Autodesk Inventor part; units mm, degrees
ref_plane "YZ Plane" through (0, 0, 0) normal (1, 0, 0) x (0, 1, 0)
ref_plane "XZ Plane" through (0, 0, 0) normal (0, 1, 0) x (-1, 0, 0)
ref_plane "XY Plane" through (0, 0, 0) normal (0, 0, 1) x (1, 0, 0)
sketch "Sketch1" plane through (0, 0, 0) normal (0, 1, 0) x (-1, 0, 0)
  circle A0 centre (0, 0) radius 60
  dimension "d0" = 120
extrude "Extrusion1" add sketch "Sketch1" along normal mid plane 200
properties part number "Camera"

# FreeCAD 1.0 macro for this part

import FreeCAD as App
import Part
import Sketcher
Q = App.Units.Quantity

doc = App.newDocument("Part")
body = doc.addObject("PartDesign::Body", "Body")

# Sketch on XZ plane
sketch1 = doc.addObject("Sketcher::SketchObject", "Sketch")
body.addObject(sketch1)
sketch1.AttachmentSupport = (doc.XZ_Plane, [""])
sketch1.MapMode = "FlatFace"
sketch1.addGeometry(Part.Circle(App.Vector(0, 0, 0), App.Vector(0, 0, 1), 60), False)
sketch1.addConstraint([
    Sketcher.Constraint("Coincident", 0, 3, -1, 1),
    Sketcher.Constraint("Diameter", 0, Q("4.7244 in")),
])
pad1 = doc.addObject("PartDesign::Pad", "Pad")
body.addObject(pad1)
pad1.Profile = sketch1
pad1.Length = 200
pad1.Midplane = True

doc.recompute()
